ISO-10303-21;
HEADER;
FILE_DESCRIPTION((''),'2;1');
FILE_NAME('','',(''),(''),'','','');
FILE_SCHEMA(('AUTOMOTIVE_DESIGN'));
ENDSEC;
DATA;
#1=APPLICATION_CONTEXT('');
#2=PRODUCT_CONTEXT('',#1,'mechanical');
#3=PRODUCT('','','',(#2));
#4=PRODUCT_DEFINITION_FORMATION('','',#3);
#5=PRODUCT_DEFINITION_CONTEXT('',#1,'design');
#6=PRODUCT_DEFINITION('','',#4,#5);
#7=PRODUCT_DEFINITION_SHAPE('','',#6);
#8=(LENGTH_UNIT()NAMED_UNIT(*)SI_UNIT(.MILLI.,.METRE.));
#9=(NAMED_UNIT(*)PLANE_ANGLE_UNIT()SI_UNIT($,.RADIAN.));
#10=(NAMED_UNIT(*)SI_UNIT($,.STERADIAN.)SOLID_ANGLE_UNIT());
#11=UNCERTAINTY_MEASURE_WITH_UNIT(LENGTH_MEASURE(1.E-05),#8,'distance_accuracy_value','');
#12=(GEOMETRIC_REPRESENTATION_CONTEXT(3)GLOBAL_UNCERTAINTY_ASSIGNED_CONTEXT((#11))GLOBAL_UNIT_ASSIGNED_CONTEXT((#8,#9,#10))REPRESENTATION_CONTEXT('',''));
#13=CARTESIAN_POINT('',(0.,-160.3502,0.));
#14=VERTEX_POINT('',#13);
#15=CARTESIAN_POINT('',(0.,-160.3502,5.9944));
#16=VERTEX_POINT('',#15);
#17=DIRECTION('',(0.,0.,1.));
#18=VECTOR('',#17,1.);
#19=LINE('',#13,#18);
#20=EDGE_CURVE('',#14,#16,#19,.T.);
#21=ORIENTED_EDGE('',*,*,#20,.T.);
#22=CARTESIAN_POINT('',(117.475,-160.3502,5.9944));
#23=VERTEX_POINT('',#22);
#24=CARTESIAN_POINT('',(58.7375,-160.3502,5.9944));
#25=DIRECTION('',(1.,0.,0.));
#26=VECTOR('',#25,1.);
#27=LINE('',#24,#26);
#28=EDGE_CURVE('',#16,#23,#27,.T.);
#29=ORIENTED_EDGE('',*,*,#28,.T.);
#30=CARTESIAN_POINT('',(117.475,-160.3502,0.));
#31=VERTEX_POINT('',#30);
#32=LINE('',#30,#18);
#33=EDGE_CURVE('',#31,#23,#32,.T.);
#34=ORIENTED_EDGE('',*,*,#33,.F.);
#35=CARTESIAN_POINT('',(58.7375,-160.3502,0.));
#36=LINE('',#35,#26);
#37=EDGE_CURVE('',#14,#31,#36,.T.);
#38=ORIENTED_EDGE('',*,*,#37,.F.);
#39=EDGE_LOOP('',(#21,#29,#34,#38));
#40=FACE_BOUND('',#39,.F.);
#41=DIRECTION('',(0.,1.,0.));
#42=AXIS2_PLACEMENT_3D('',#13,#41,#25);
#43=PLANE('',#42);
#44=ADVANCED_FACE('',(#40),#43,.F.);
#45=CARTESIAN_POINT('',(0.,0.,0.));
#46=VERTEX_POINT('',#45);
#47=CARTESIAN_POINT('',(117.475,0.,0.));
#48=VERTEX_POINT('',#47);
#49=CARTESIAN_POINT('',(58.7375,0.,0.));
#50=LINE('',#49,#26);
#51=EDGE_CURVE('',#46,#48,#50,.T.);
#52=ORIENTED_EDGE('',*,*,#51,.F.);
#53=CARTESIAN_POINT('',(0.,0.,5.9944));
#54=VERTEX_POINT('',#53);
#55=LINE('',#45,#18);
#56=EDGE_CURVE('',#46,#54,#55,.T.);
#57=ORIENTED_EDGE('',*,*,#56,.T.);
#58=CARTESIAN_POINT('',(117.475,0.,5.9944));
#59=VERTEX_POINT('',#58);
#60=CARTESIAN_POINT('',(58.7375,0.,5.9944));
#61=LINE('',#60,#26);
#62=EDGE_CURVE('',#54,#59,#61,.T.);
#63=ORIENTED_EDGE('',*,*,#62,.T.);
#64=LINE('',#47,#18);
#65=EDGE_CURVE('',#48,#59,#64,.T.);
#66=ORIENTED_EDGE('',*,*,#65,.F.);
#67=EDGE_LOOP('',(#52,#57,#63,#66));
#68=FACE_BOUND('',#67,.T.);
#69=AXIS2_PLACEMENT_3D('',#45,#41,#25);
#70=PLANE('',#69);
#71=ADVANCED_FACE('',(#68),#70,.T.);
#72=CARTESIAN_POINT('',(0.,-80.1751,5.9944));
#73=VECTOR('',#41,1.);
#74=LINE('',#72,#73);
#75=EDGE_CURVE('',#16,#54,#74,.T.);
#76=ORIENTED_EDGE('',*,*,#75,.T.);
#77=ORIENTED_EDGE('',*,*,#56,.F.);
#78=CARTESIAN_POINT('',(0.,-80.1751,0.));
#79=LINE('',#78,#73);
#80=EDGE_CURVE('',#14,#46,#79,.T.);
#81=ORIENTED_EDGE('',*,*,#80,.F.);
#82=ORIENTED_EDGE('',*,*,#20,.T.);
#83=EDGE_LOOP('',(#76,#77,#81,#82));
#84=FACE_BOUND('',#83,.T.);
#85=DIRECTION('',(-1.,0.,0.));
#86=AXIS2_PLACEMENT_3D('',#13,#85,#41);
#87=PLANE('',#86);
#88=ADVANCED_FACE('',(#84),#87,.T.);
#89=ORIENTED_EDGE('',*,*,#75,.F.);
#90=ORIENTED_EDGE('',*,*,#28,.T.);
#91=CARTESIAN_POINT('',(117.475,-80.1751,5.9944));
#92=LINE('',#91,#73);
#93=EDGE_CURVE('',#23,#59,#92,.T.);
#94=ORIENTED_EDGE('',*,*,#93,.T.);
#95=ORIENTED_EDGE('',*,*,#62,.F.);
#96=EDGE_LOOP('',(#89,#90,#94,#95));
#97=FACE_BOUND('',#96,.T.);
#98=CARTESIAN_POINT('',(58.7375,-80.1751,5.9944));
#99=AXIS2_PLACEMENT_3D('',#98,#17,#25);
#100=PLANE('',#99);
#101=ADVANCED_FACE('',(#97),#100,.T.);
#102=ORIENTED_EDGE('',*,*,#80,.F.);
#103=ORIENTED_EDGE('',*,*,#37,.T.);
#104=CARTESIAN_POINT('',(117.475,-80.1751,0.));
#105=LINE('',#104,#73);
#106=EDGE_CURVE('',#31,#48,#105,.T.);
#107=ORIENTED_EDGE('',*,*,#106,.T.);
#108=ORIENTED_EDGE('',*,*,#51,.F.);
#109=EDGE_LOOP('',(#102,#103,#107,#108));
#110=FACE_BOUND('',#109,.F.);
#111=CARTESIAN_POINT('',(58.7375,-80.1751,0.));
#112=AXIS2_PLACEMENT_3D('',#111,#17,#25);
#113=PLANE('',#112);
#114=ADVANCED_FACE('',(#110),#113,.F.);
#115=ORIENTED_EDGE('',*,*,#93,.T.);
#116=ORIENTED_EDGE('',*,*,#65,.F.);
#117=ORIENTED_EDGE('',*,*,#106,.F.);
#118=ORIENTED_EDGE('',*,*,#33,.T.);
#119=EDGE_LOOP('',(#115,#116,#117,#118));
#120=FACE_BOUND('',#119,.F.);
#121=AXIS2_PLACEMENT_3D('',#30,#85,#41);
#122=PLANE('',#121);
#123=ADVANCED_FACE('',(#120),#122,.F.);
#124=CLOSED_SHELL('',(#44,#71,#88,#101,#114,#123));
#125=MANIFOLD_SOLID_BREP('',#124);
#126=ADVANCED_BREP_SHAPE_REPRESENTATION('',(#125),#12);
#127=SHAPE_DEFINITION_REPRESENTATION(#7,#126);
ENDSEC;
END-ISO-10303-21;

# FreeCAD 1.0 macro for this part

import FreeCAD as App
import Part
import Sketcher
Q = App.Units.Quantity

doc = App.newDocument("Part")
body = doc.addObject("PartDesign::Body", "Body")

# Sketch on XY plane
sketch1 = doc.addObject("Sketcher::SketchObject", "Sketch")
body.addObject(sketch1)
sketch1.AttachmentSupport = (doc.XY_Plane, [""])
sketch1.MapMode = "FlatFace"
sketch1.addGeometry([
    Part.LineSegment(App.Vector(0, 0, 0), App.Vector(0, -160, 0)),
    Part.LineSegment(App.Vector(0, -160, 0), App.Vector(117, -160, 0)),
    Part.LineSegment(App.Vector(117, -160, 0), App.Vector(117, 0, 0)),
    Part.LineSegment(App.Vector(117, 0, 0), App.Vector(0, 0, 0)),
], False)
sketch1.addConstraint([
    Sketcher.Constraint("Coincident", 0, 2, 1, 1),
    Sketcher.Constraint("Coincident", 1, 2, 2, 1),
    Sketcher.Constraint("Coincident", 2, 2, 3, 1),
    Sketcher.Constraint("Coincident", 3, 2, 0, 1),
    Sketcher.Constraint("Vertical", 0),
    Sketcher.Constraint("Horizontal", 1),
    Sketcher.Constraint("Vertical", 2),
    Sketcher.Constraint("Horizontal", 3),
    Sketcher.Constraint("Coincident", 3, 2, -1, 1),
    Sketcher.Constraint("DistanceX", 1, 1, 1, 2, Q("4.625 in")),
    Sketcher.Constraint("DistanceY", 0, 2, 0, 1, Q("6.313 in")),
])
pad1 = doc.addObject("PartDesign::Pad", "Pad")
body.addObject(pad1)
pad1.Profile = sketch1
pad1.Length = Q("0.236 in")

doc.recompute()
